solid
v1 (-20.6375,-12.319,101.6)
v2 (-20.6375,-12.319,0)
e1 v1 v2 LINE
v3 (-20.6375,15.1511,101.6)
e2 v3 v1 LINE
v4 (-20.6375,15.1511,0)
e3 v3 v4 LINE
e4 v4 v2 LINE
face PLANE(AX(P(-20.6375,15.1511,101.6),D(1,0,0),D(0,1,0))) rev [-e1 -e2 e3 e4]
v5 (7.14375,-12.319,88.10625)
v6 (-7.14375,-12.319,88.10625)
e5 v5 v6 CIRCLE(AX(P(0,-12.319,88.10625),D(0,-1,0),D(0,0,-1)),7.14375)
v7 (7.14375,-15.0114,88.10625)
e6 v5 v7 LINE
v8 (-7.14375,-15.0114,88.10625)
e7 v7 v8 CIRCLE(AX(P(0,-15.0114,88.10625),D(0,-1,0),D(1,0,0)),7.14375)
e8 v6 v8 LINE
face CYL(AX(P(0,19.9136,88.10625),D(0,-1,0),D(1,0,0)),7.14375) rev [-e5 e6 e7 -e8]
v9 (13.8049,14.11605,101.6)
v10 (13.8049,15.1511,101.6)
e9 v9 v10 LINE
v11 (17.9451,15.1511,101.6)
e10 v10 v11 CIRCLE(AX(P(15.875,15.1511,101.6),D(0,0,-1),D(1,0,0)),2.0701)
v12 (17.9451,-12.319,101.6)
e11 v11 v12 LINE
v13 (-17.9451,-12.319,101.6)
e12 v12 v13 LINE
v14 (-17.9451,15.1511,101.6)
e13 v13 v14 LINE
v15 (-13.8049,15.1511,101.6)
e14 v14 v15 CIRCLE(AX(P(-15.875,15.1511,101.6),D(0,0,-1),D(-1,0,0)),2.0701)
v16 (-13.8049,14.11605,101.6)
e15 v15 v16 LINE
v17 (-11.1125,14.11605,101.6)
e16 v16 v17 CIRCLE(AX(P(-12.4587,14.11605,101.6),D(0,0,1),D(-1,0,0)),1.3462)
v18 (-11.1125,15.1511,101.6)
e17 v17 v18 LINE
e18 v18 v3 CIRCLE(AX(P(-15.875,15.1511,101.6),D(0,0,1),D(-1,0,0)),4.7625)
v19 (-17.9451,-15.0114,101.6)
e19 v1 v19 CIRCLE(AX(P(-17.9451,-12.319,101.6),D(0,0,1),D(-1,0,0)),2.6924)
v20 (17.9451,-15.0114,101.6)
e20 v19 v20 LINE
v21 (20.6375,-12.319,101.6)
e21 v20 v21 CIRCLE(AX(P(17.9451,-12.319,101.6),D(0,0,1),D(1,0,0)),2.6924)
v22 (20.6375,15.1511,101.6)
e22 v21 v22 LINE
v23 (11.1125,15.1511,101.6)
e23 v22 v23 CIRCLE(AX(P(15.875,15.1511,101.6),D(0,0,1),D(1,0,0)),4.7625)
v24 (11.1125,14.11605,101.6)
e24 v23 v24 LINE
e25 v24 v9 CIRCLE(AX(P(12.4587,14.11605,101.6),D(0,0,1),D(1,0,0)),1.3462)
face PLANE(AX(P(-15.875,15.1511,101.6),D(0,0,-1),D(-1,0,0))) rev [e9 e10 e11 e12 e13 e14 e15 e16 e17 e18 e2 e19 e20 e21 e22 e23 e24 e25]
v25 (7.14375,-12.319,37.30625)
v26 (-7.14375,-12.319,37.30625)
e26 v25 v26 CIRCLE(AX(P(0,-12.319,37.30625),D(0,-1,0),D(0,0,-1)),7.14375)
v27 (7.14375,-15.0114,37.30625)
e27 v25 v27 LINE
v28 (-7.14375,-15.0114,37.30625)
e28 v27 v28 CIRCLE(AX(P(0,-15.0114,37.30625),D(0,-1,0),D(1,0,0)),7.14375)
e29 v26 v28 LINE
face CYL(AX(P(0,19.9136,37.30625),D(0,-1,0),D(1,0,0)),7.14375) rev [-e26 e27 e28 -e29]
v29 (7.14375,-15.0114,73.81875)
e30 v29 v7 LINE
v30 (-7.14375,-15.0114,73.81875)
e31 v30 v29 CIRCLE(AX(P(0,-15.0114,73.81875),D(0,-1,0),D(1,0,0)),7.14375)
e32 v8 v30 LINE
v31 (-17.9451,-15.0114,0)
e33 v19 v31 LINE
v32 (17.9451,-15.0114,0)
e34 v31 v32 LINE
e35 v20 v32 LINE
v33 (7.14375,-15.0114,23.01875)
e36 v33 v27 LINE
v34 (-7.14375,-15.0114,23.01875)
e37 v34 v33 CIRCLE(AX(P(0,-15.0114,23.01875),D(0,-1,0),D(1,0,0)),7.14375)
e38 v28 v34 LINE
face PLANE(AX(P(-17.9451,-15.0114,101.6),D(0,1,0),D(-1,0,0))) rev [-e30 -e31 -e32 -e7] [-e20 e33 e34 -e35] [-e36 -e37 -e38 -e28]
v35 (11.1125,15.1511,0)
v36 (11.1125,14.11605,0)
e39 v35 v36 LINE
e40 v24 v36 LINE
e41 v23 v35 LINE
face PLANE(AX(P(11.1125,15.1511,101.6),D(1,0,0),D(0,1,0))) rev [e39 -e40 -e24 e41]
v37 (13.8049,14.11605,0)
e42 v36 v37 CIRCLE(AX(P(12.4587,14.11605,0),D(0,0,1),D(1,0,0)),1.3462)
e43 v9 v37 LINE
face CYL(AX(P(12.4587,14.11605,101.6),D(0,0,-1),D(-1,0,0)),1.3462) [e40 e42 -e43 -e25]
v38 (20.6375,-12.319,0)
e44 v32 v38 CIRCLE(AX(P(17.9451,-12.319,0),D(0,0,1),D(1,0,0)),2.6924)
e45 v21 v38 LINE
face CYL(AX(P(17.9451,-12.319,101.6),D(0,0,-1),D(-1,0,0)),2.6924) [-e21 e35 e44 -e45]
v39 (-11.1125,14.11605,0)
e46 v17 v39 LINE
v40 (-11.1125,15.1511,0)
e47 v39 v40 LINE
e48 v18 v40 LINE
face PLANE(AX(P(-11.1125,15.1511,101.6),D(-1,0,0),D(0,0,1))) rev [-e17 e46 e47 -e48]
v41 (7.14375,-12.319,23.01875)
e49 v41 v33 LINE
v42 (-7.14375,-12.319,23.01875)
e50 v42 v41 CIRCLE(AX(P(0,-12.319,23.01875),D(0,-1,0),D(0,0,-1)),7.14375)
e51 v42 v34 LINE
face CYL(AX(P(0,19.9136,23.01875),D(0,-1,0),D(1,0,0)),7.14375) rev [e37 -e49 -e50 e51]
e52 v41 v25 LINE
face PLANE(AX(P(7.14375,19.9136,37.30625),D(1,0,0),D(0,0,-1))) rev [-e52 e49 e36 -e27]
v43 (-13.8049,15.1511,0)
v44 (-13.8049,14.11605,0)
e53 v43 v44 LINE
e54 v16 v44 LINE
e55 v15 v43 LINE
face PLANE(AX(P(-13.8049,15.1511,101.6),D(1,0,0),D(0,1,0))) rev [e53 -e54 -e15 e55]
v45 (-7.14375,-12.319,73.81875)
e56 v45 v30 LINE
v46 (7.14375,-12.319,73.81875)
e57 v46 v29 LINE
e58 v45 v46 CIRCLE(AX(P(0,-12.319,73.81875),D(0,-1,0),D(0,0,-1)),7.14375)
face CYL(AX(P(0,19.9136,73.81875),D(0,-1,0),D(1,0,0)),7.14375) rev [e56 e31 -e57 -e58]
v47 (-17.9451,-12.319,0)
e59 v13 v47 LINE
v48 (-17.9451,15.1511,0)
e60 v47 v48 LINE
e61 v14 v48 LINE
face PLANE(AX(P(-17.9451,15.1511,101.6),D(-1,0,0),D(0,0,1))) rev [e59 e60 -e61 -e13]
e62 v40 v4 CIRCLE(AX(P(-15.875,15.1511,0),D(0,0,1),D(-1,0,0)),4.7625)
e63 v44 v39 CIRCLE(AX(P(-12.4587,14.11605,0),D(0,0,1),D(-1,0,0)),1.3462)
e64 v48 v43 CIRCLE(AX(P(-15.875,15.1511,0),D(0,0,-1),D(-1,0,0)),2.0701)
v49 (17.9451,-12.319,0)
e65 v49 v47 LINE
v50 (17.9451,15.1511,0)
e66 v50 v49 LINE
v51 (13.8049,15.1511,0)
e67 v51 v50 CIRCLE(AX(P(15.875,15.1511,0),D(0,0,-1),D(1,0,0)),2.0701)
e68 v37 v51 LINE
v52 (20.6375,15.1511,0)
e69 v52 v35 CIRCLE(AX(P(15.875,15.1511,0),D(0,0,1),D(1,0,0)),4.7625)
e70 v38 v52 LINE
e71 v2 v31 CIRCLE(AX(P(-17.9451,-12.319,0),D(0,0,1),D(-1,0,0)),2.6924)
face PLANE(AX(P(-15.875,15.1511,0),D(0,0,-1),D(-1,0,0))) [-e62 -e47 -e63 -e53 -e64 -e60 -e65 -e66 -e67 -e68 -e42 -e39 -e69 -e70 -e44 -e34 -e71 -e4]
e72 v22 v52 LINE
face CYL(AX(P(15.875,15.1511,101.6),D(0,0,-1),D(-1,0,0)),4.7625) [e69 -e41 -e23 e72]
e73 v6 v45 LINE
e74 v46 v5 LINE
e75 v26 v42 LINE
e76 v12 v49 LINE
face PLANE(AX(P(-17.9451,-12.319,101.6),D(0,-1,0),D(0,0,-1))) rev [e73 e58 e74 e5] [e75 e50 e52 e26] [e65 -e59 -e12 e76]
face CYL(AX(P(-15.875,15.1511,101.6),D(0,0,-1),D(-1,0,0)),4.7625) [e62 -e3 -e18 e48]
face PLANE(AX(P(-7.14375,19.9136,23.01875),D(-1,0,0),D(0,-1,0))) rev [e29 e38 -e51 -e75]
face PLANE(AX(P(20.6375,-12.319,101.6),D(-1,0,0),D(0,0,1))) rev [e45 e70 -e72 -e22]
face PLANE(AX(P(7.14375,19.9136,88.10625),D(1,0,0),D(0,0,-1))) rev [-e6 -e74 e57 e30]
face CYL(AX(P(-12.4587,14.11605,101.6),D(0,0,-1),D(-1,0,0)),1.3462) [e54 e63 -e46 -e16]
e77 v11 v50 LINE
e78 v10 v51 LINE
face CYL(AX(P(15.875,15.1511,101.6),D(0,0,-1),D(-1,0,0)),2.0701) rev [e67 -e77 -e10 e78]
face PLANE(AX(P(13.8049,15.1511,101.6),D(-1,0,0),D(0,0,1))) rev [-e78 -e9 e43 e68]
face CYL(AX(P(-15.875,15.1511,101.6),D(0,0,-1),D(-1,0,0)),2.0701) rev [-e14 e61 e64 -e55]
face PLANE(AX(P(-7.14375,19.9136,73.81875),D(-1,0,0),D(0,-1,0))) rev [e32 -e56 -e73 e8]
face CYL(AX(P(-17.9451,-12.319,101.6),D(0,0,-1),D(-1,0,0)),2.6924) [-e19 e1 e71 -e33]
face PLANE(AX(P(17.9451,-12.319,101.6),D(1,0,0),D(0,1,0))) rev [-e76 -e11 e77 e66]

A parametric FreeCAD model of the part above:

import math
import FreeCAD as App
import Part
import Sketcher

V = App.Vector
Q = App.Units.Quantity

doc = App.newDocument("Part")
params = doc.addObject("Spreadsheet::Sheet", "Params")
for row, (alias, value) in enumerate([
    ("sketch1_radius", "0.106 in"),
    ("sketch1_radius2", "0.1875 in"),
    ("sketch1_width", "1.413 in"),
    ("pad1_length", "4 in"),
    ("sketch2_radius", "0.28125 in"),
    ("sketch2_height", "0.5625 in"),
    ("linearpattern_pitch", "2 in"),
], start=1):
    params.set(f"A{row}", alias)
    params.set(f"B{row}", "=" + value)
    params.setAlias(f"B{row}", alias)

body = doc.addObject("PartDesign::Body", "Body")

# Sketch on XY plane
sketch1 = doc.addObject("Sketcher::SketchObject", "Sketch")
body.addObject(sketch1)
sketch1.AttachmentSupport = (doc.XY_Plane, [""])
sketch1.MapMode = "FlatFace"
sketch1.addGeometry(Part.LineSegment(V(-20.6, 15.2, 0), V(-20.6, -12.3, 0)), False)
sketch1.addGeometry(Part.ArcOfCircle(Part.Circle(V(-17.9, -12.3, 0), V(0, 0, 1), 2.7), math.radians(180), math.radians(270)), False)
sketch1.addGeometry(Part.LineSegment(V(-17.9, -15, 0), V(17.9, -15, 0)), False)
sketch1.addGeometry(Part.ArcOfCircle(Part.Circle(V(17.9, -12.3, 0), V(0, 0, 1), 2.7), math.radians(-90), math.radians(0)), False)
sketch1.addGeometry(Part.LineSegment(V(20.6, -12.3, 0), V(20.6, 15.2, 0)), False)
sketch1.addGeometry(Part.ArcOfCircle(Part.Circle(V(15.9, 15.2, 0), V(0, 0, 1), 4.8), math.radians(0), math.radians(180)), False)
sketch1.addGeometry(Part.LineSegment(V(11.1, 15.2, 0), V(11.1, 14.1, 0)), False)
sketch1.addGeometry(Part.ArcOfCircle(Part.Circle(V(12.5, 14.1, 0), V(0, 0, 1), 1.3), math.radians(180), math.radians(360)), False)
sketch1.addGeometry(Part.LineSegment(V(13.8, 14.1, 0), V(13.8, 15.2, 0)), False)
sketch1.addGeometry(Part.ArcOfCircle(Part.Circle(V(15.9, 15.2, 0), V(0, 0, 1), 2.1), math.radians(0), math.radians(180)), False)
sketch1.addGeometry(Part.LineSegment(V(17.9, 15.2, 0), V(17.9, -12.3, 0)), False)
sketch1.addGeometry(Part.LineSegment(V(17.9, -12.3, 0), V(-17.9, -12.3, 0)), False)
sketch1.addGeometry(Part.LineSegment(V(-17.9, -12.3, 0), V(-17.9, 15.2, 0)), False)
sketch1.addGeometry(Part.ArcOfCircle(Part.Circle(V(-15.9, 15.2, 0), V(0, 0, 1), 2.1), math.radians(0), math.radians(180)), False)
sketch1.addGeometry(Part.LineSegment(V(-13.8, 15.2, 0), V(-13.8, 14.1, 0)), False)
sketch1.addGeometry(Part.ArcOfCircle(Part.Circle(V(-12.5, 14.1, 0), V(0, 0, 1), 1.3), math.radians(180), math.radians(360)), False)
sketch1.addGeometry(Part.LineSegment(V(-11.1, 14.1, 0), V(-11.1, 15.2, 0)), False)
sketch1.addGeometry(Part.ArcOfCircle(Part.Circle(V(-15.9, 15.2, 0), V(0, 0, 1), 4.8), math.radians(0), math.radians(180)), False)
sketch1.addConstraint(Sketcher.Constraint("Tangent", 0, 2, 1, 1))
sketch1.addConstraint(Sketcher.Constraint("Tangent", 1, 2, 2, 1))
sketch1.addConstraint(Sketcher.Constraint("Tangent", 2, 2, 3, 1))
sketch1.addConstraint(Sketcher.Constraint("Tangent", 3, 2, 4, 1))
sketch1.addConstraint(Sketcher.Constraint("Tangent", 4, 2, 5, 1))
sketch1.addConstraint(Sketcher.Constraint("Tangent", 5, 2, 6, 1))
sketch1.addConstraint(Sketcher.Constraint("Tangent", 6, 2, 7, 1))
sketch1.addConstraint(Sketcher.Constraint("Tangent", 7, 2, 8, 1))
sketch1.addConstraint(Sketcher.Constraint("Tangent", 8, 2, 9, 2))
sketch1.addConstraint(Sketcher.Constraint("Tangent", 9, 1, 10, 1))
sketch1.addConstraint(Sketcher.Constraint("Coincident", 10, 2, 11, 1))
sketch1.addConstraint(Sketcher.Constraint("Coincident", 11, 2, 12, 1))
sketch1.addConstraint(Sketcher.Constraint("Tangent", 12, 2, 13, 2))
sketch1.addConstraint(Sketcher.Constraint("Tangent", 13, 1, 14, 1))
sketch1.addConstraint(Sketcher.Constraint("Tangent", 14, 2, 15, 1))
sketch1.addConstraint(Sketcher.Constraint("Tangent", 15, 2, 16, 1))
sketch1.addConstraint(Sketcher.Constraint("Tangent", 16, 2, 17, 1))
sketch1.addConstraint(Sketcher.Constraint("Tangent", 17, 2, 0, 1))
sketch1.addConstraint(Sketcher.Constraint("Vertical", 0))
sketch1.addConstraint(Sketcher.Constraint("Horizontal", 2))
sketch1.addConstraint(Sketcher.Constraint("Vertical", 4))
sketch1.addConstraint(Sketcher.Constraint("Vertical", 6))
sketch1.addConstraint(Sketcher.Constraint("Vertical", 8))
sketch1.addConstraint(Sketcher.Constraint("Vertical", 10))
sketch1.addConstraint(Sketcher.Constraint("Horizontal", 11))
sketch1.addConstraint(Sketcher.Constraint("Vertical", 12))
sketch1.addConstraint(Sketcher.Constraint("Vertical", 14))
sketch1.addConstraint(Sketcher.Constraint("Vertical", 16))
sketch1.addConstraint(Sketcher.Constraint("Coincident", 9, 3, 5, 3))
sketch1.addConstraint(Sketcher.Constraint("Coincident", 17, 3, 13, 3))
sketch1.addConstraint(Sketcher.Constraint("Coincident", 10, 2, 3, 3))
sketch1.addConstraint(Sketcher.Constraint("Coincident", 11, 2, 1, 3))
sketch1.addConstraint(Sketcher.Constraint("Equal", 9, 13))
sketch1.addConstraint(Sketcher.Constraint("Symmetric", 5, 3, 13, 3, -2))
sketch1.addConstraint(Sketcher.Constraint("Horizontal", 7, 3, 15, 3))
sketch1.addConstraint(Sketcher.Constraint("Radius", 1, Q("0.106 in")))
sketch1.addConstraint(Sketcher.Constraint("Radius", 5, Q("0.1875 in")))
sketch1.addConstraint(Sketcher.Constraint("DistanceX", 2, 1, 2, 2, Q("1.413 in")))
sketch1.addConstraint(Sketcher.Constraint("DistanceY", 0, 2, 0, 1, Q("1.0815 in")))
sketch1.addConstraint(Sketcher.Constraint("DistanceY", 1, 3, -1, 1, Q("0.485 in")))
sketch1.addConstraint(Sketcher.Constraint("DistanceY", 6, 2, 6, 1, Q("1.03505 mm")))
sketch1.setExpression("Constraints[35]", "Params.sketch1_radius")
sketch1.setExpression("Constraints[36]", "Params.sketch1_radius2")
sketch1.setExpression("Constraints[37]", "Params.sketch1_width")
pad1 = doc.addObject("PartDesign::Pad", "Pad")
body.addObject(pad1)
pad1.Profile = sketch1
pad1.setExpression("Length", "Params.pad1_length")

# Sketch on XZ plane
sketch2 = doc.addObject("Sketcher::SketchObject", "Sketch001")
body.addObject(sketch2)
sketch2.AttachmentSupport = (doc.XZ_Plane, [""])
sketch2.MapMode = "FlatFace"
sketch2.AttachmentOffset = App.Placement(V(0, 0, 0.591 * 25.4), App.Rotation())
sketch2.addGeometry(Part.LineSegment(V(7, 23, 0), V(7, 37, 0)), False)
sketch2.addGeometry(Part.ArcOfCircle(Part.Circle(V(0, 37, 0), V(0, 0, 1), 7), math.radians(0), math.radians(180)), False)
sketch2.addGeometry(Part.LineSegment(V(-7, 37, 0), V(-7, 23, 0)), False)
sketch2.addGeometry(Part.ArcOfCircle(Part.Circle(V(0, 23, 0), V(0, 0, 1), 7), math.radians(180), math.radians(360)), False)
sketch2.addConstraint(Sketcher.Constraint("Tangent", 0, 2, 1, 1))
sketch2.addConstraint(Sketcher.Constraint("Tangent", 1, 2, 2, 1))
sketch2.addConstraint(Sketcher.Constraint("Tangent", 2, 2, 3, 1))
sketch2.addConstraint(Sketcher.Constraint("Tangent", 3, 2, 0, 1))
sketch2.addConstraint(Sketcher.Constraint("Vertical", 0))
sketch2.addConstraint(Sketcher.Constraint("Vertical", 2))
sketch2.addConstraint(Sketcher.Constraint("PointOnObject", 1, 3, -2))
sketch2.addConstraint(Sketcher.Constraint("Radius", 1, Q("0.28125 in")))
sketch2.addConstraint(Sketcher.Constraint("DistanceY", 0, 1, 0, 2, Q("0.5625 in")))
sketch2.addConstraint(Sketcher.Constraint("DistanceY", -1, 1, 1, 3, Q("1.46875 in")))
sketch2.setExpression("Constraints[7]", "Params.sketch2_radius")
sketch2.setExpression("Constraints[8]", "Params.sketch2_height")
pocket1 = doc.addObject("PartDesign::Pocket", "Pocket")
body.addObject(pocket1)
pocket1.Profile = sketch2
pocket1.Type = "ThroughAll"
doc.recompute()

linearpattern = doc.addObject("PartDesign::LinearPattern", "LinearPattern")
body.addObject(linearpattern)
linearpattern.Originals = [pocket1]
linearpattern.Direction = (doc.Z_Axis, [""])
linearpattern.Mode = "offset"
linearpattern.setExpression("Offset", "Params.linearpattern_pitch")
linearpattern.Occurrences = 2
body.Tip = linearpattern

doc.recompute()
